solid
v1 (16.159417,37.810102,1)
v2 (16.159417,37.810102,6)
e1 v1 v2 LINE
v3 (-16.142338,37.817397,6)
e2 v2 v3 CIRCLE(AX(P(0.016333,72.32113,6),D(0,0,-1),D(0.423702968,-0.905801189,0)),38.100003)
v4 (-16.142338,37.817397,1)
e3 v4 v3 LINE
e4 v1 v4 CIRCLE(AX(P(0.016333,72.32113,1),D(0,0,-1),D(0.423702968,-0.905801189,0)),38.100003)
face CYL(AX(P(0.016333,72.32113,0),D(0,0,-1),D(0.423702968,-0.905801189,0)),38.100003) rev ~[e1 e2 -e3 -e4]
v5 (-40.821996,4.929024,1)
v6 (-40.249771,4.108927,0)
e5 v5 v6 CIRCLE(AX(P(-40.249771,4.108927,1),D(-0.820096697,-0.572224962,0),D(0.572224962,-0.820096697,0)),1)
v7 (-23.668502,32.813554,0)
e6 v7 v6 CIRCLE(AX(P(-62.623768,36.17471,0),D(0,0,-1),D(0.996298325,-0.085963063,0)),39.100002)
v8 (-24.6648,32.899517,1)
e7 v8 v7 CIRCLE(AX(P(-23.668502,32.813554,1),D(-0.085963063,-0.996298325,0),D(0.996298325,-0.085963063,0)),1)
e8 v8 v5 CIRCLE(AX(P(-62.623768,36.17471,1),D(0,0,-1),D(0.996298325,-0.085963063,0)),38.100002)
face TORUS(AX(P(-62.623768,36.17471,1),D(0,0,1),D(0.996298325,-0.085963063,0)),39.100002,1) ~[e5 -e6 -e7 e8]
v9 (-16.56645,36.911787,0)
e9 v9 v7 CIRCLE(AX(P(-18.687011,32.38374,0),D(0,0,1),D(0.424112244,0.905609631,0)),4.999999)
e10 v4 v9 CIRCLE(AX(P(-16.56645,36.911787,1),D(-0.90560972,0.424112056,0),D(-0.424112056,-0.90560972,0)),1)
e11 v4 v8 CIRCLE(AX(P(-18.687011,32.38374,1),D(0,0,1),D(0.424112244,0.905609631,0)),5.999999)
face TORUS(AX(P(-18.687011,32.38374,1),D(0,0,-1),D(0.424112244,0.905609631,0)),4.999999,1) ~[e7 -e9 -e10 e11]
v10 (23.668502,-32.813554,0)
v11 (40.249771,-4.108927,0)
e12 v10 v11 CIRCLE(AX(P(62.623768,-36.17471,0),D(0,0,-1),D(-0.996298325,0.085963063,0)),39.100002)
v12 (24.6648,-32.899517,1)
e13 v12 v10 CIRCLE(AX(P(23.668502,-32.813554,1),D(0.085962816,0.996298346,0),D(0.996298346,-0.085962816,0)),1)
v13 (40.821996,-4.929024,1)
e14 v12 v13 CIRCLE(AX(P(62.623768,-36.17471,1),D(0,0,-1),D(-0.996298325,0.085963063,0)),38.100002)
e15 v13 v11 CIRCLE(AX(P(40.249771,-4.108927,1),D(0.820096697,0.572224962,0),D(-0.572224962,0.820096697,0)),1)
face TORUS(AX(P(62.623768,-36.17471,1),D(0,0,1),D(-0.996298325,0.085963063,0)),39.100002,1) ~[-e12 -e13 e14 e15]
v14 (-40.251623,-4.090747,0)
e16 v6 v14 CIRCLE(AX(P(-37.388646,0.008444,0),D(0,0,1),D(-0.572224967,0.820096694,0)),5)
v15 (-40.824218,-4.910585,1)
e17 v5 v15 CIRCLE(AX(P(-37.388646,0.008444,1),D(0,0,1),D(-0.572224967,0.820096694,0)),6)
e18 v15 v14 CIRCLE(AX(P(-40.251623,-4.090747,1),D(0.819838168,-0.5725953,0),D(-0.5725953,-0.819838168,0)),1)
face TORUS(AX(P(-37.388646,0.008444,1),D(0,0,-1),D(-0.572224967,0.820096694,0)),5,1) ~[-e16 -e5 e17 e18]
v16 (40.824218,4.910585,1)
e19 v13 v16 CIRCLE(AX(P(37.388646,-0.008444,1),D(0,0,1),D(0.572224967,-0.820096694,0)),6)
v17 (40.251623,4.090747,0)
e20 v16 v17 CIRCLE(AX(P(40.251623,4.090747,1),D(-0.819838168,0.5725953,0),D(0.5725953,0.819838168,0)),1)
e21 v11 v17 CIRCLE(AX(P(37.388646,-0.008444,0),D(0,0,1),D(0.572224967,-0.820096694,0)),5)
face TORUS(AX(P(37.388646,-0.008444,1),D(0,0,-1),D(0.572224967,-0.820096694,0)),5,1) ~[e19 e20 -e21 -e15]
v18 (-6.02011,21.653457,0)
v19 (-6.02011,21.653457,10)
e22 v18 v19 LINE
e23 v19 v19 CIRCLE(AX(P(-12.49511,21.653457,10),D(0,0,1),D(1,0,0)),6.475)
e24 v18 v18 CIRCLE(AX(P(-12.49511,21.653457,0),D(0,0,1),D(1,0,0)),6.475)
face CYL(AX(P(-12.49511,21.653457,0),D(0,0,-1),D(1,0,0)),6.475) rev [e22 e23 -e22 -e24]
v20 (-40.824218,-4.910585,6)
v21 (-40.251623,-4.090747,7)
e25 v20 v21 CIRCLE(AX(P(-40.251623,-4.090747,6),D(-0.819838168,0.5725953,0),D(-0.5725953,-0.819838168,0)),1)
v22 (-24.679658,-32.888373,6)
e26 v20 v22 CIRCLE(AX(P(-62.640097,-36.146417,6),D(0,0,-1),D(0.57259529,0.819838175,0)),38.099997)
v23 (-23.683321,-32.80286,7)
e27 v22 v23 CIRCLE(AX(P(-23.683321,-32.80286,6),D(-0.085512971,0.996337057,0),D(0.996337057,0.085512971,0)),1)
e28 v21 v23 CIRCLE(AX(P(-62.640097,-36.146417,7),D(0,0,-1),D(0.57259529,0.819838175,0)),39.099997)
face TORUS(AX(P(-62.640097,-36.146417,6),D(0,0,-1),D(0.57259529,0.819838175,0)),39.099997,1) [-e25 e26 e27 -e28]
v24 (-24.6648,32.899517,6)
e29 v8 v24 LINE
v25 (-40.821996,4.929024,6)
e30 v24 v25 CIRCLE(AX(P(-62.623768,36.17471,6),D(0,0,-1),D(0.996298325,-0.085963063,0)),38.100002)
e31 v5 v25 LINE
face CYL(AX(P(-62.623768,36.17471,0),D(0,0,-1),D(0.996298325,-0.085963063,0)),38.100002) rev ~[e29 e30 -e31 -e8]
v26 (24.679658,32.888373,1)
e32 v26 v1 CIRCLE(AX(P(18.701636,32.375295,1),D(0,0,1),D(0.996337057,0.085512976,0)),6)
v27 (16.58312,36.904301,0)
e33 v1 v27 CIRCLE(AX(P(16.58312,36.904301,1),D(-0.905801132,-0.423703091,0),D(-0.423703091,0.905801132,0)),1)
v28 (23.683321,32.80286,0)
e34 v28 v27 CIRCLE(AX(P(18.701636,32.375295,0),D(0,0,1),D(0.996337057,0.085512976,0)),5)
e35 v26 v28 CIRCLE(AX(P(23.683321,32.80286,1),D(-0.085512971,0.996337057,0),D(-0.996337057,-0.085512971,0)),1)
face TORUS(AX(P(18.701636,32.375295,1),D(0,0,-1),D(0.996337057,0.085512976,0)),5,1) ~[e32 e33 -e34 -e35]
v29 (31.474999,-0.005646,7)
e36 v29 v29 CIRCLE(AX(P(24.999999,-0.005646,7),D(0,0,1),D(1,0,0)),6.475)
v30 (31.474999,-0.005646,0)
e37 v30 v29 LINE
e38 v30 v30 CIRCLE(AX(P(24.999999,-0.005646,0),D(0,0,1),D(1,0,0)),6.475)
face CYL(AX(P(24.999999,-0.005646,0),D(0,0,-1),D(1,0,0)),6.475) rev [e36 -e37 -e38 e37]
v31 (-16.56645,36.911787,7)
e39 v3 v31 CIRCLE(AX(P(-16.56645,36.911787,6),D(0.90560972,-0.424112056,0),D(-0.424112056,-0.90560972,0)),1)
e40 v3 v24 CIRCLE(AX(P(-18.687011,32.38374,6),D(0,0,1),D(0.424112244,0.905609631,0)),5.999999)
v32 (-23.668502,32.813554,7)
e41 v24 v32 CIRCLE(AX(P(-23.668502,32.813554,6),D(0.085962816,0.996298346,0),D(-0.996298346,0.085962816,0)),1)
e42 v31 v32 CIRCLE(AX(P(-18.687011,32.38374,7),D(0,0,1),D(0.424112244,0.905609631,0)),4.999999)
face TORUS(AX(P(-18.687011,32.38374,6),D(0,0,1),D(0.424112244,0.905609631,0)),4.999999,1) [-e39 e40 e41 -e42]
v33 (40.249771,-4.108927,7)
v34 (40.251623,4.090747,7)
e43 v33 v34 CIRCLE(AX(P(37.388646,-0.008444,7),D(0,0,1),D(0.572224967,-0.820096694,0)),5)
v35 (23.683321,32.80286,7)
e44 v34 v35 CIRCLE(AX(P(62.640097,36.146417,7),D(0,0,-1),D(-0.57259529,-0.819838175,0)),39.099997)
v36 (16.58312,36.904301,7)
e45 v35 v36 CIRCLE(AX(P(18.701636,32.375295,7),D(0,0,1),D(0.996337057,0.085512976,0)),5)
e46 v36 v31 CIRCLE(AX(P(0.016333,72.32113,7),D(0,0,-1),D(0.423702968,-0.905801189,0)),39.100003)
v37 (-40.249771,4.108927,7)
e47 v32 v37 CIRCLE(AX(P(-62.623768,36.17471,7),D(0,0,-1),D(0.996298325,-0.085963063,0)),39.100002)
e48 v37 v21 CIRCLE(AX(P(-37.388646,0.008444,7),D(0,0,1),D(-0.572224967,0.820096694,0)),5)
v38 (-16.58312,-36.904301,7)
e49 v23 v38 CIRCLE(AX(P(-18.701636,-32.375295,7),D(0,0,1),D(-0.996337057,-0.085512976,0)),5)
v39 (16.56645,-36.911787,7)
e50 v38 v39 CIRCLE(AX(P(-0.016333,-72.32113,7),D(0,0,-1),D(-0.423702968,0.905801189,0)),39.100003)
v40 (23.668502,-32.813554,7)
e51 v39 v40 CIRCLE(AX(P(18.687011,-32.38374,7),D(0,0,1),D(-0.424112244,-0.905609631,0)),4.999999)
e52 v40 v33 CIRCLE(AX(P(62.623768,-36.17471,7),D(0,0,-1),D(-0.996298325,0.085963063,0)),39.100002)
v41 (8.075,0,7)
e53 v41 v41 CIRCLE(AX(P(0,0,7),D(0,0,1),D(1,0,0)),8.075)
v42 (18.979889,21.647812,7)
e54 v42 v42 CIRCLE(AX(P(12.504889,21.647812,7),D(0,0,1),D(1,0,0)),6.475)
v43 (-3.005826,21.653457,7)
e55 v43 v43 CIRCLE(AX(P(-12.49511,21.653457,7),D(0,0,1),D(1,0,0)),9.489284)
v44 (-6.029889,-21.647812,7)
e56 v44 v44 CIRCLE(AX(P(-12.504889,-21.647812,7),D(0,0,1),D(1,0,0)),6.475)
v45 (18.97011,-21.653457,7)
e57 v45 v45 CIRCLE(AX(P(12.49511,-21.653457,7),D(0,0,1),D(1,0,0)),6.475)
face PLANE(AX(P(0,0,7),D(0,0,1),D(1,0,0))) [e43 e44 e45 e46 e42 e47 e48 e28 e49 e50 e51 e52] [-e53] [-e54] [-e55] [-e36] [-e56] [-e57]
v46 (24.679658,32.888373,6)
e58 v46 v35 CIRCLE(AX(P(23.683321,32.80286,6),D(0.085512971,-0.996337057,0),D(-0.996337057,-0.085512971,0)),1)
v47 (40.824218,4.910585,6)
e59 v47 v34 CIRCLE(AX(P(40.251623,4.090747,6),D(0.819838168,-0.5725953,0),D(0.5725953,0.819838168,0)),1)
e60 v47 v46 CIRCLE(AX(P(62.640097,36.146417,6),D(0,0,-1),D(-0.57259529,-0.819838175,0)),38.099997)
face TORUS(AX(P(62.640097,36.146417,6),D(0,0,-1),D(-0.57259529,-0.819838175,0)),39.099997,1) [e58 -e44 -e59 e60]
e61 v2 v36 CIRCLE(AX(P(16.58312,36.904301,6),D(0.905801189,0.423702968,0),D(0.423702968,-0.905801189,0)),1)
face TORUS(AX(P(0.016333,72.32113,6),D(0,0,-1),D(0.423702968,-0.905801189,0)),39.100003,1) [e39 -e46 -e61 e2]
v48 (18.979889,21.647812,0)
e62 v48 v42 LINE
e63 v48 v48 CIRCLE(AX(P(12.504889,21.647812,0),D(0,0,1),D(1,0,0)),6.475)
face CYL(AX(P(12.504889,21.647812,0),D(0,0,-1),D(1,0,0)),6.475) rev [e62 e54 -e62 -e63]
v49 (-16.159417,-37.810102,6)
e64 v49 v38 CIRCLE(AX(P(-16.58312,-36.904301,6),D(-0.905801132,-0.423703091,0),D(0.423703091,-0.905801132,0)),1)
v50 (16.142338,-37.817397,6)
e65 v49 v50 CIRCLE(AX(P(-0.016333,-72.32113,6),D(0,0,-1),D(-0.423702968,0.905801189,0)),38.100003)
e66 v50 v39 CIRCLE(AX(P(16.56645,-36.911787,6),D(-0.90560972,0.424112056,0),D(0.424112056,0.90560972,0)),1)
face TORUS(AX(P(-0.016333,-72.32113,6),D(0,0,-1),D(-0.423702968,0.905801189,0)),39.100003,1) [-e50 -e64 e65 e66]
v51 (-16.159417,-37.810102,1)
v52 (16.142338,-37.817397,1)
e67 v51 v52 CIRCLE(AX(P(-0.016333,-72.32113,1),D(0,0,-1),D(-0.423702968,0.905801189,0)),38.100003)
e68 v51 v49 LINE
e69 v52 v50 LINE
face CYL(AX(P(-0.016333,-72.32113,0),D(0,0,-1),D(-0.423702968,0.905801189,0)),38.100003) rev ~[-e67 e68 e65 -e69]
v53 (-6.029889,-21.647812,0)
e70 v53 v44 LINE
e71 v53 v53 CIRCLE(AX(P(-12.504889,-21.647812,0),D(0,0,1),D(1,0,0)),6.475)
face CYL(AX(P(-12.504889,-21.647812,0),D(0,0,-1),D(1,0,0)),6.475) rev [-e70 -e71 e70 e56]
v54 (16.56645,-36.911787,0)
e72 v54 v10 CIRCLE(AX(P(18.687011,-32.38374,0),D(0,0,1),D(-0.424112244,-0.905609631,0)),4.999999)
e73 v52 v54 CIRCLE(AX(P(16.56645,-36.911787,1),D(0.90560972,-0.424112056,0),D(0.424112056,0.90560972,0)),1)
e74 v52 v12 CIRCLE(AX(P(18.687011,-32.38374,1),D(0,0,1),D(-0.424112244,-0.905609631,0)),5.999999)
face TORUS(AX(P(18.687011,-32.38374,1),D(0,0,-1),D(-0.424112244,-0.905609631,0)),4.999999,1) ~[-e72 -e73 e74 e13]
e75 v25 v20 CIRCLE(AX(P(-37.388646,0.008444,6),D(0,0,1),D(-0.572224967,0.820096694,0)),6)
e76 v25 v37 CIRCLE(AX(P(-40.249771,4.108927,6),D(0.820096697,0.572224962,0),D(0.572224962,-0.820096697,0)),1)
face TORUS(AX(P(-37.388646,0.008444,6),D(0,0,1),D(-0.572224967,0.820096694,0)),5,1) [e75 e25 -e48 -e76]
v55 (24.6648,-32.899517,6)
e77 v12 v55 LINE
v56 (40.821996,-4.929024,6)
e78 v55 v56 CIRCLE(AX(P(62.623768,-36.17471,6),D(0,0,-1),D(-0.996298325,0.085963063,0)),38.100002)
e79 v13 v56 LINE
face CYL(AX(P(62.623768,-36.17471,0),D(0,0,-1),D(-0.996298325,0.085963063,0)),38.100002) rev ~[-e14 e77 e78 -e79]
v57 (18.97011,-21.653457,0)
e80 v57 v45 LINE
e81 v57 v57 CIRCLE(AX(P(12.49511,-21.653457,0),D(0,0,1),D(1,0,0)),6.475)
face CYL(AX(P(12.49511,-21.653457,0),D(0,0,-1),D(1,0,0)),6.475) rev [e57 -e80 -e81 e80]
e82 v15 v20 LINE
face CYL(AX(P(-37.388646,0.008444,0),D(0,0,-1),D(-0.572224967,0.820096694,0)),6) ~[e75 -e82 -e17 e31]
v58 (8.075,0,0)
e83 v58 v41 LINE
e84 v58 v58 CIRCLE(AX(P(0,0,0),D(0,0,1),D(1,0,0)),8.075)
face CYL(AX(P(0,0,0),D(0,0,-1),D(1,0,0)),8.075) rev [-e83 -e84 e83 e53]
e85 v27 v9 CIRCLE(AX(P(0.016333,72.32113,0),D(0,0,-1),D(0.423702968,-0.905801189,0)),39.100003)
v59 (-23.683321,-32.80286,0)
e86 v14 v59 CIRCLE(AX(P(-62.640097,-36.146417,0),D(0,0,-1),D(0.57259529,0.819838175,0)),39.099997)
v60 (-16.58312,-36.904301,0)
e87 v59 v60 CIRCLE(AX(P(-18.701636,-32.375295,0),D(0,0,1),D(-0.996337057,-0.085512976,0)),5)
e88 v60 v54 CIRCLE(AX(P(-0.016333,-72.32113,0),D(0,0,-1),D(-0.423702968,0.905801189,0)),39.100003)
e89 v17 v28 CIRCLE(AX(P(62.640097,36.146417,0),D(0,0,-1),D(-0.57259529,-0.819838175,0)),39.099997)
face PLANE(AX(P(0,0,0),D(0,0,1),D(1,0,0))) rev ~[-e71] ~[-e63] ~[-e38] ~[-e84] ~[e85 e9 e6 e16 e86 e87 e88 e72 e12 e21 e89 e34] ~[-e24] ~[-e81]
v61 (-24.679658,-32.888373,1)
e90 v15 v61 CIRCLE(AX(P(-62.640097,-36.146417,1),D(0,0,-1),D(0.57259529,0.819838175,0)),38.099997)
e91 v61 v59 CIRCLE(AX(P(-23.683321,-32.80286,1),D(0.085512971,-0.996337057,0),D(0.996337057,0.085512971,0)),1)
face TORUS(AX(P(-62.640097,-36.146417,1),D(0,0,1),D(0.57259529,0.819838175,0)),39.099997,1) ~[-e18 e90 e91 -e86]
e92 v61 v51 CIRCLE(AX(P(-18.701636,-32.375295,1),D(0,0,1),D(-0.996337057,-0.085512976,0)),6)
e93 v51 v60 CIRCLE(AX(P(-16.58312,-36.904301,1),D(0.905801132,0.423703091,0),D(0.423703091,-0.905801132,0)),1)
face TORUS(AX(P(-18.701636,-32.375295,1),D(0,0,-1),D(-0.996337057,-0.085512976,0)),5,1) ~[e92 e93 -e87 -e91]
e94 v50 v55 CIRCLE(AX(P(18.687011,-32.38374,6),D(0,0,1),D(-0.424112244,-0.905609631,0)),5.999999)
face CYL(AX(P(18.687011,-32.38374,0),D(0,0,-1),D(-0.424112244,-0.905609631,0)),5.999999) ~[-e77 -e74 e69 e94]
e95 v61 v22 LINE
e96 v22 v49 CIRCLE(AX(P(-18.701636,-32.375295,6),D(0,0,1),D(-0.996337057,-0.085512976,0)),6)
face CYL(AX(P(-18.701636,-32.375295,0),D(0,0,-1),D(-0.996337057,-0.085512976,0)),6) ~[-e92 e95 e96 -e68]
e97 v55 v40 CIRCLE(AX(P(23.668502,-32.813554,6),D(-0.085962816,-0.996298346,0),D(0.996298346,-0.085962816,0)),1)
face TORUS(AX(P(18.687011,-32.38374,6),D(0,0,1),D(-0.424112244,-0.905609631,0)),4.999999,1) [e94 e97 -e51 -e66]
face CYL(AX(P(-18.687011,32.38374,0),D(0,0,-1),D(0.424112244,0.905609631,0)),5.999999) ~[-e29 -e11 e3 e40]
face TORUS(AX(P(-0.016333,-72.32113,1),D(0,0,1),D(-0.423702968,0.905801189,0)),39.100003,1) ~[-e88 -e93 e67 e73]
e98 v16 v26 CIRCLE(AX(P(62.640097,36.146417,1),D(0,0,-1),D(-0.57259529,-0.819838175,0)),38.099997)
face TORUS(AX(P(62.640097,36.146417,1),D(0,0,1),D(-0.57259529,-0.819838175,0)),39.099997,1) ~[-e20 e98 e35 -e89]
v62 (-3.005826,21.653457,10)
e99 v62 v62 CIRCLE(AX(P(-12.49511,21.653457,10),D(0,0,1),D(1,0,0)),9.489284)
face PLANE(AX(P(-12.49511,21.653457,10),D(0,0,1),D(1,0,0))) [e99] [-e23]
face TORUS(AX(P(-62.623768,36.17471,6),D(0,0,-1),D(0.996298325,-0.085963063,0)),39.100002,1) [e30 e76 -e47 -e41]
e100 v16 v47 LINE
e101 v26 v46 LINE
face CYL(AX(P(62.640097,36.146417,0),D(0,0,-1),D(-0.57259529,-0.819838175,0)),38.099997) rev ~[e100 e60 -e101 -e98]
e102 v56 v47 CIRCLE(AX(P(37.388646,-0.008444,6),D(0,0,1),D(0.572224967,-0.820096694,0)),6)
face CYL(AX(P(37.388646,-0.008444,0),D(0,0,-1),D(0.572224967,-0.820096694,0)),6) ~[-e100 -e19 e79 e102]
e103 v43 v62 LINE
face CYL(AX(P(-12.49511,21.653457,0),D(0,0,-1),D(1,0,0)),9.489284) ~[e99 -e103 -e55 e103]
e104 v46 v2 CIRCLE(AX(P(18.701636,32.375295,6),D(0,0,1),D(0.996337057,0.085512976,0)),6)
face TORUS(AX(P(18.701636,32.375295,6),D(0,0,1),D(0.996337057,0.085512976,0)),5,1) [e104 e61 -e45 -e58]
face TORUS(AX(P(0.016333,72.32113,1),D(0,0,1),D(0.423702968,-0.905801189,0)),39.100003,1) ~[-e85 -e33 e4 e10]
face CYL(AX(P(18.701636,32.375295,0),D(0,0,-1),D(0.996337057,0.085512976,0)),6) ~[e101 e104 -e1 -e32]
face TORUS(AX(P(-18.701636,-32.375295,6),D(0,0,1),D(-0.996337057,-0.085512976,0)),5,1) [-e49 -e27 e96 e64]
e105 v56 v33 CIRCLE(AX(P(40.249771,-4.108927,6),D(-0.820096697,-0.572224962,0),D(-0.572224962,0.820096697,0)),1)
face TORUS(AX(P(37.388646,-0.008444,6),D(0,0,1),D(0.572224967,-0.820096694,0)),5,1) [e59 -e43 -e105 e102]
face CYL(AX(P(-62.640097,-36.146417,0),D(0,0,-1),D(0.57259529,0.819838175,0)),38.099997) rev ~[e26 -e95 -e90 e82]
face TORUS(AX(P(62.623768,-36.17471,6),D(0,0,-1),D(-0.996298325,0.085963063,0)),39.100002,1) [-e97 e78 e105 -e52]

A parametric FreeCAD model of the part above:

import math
import FreeCAD as App
import Part
import Sketcher
from FreeCAD import Vector
Q = App.Units.Quantity


def edges_at(feature, points):
    """Names of the edges that pass closest to the given points."""
    edges = feature.Shape.Edges
    near = lambda p: min(range(len(edges)), key=lambda i: edges[i].distToShape(Part.Vertex(*p))[0])
    return sorted({f"Edge{near(p) + 1}" for p in points})

doc = App.newDocument("Part")
body = doc.addObject("PartDesign::Body", "Body")

# Sketch on XY plane
sketch1 = body.newObject("Sketcher::SketchObject", "Sketch")
sketch1.AttachmentSupport = (doc.getObject("XY_Plane"), [""])
sketch1.MapMode = "FlatFace"
sketch1.addGeometry(Part.ArcOfCircle(Part.Circle(Vector(0.016333, 72.32113, 0), Vector(0, 0, 1), 38.100003), math.radians(-115.094472), math.radians(-64.931407)), False)
sketch1.addGeometry(Part.ArcOfCircle(Part.Circle(Vector(-18.687011, 32.38374, 0), Vector(0, 0, 1), 5.999999), math.radians(64.905516), math.radians(175.068607)), False)
sketch1.addGeometry(Part.ArcOfCircle(Part.Circle(Vector(-62.623768, 36.17471, 0), Vector(0, 0, 1), 38.100002), math.radians(-55.094475), math.radians(-4.931407)), False)
sketch1.addGeometry(Part.ArcOfCircle(Part.Circle(Vector(-37.388646, 0.008444, 0), Vector(0, 0, 1), 6), math.radians(124.905526), math.radians(235.068597)), False)
sketch1.addGeometry(Part.ArcOfCircle(Part.Circle(Vector(-62.640097, -36.146417, 0), Vector(0, 0, 1), 38.099997), math.radians(4.905523), math.radians(55.068598)), False)
sketch1.addGeometry(Part.ArcOfCircle(Part.Circle(Vector(-18.701636, -32.375295, 0), Vector(0, 0, 1), 6), math.radians(-175.094476), math.radians(-64.931399)), False)
sketch1.addGeometry(Part.ArcOfCircle(Part.Circle(Vector(-0.016333, -72.32113, 0), Vector(0, 0, 1), 38.100003), math.radians(64.905528), math.radians(115.068593)), False)
sketch1.addGeometry(Part.ArcOfCircle(Part.Circle(Vector(18.687011, -32.38374, 0), Vector(0, 0, 1), 5.999999), math.radians(-115.094484), math.radians(-4.931393)), False)
sketch1.addGeometry(Part.ArcOfCircle(Part.Circle(Vector(62.623768, -36.17471, 0), Vector(0, 0, 1), 38.100002), math.radians(124.905525), math.radians(175.068593)), False)
sketch1.addGeometry(Part.ArcOfCircle(Part.Circle(Vector(37.388646, -0.008444, 0), Vector(0, 0, 1), 6), math.radians(-55.094474), math.radians(55.068597)), False)
sketch1.addGeometry(Part.ArcOfCircle(Part.Circle(Vector(62.640097, 36.146417, 0), Vector(0, 0, 1), 38.099997), math.radians(-175.094477), math.radians(-124.931402)), False)
sketch1.addGeometry(Part.ArcOfCircle(Part.Circle(Vector(18.701636, 32.375295, 0), Vector(0, 0, 1), 6), math.radians(4.905524), math.radians(115.068601)), False)
sketch1.addGeometry(Part.Circle(Vector(-12.504889, -21.647812, 0), Vector(0, 0, 1), 6.475), False)
sketch1.addGeometry(Part.Circle(Vector(0, 0, 0), Vector(0, 0, 1), 8.075), False)
sketch1.addGeometry(Part.Circle(Vector(12.49511, -21.653457, 0), Vector(0, 0, 1), 6.475), False)
sketch1.addGeometry(Part.Circle(Vector(24.999999, -0.005646, 0), Vector(0, 0, 1), 6.475), False)
sketch1.addGeometry(Part.Circle(Vector(-12.49511, 21.653457, 0), Vector(0, 0, 1), 9.489284), False)
sketch1.addGeometry(Part.Circle(Vector(12.504889, 21.647812, 0), Vector(0, 0, 1), 6.475), False)
sketch1.addConstraint(Sketcher.Constraint("Tangent", 0, 1, 1, 1))
sketch1.addConstraint(Sketcher.Constraint("Tangent", 1, 2, 2, 2))
sketch1.addConstraint(Sketcher.Constraint("Tangent", 2, 1, 3, 1))
sketch1.addConstraint(Sketcher.Constraint("Tangent", 3, 2, 4, 2))
sketch1.addConstraint(Sketcher.Constraint("Tangent", 4, 1, 5, 1))
sketch1.addConstraint(Sketcher.Constraint("Tangent", 5, 2, 6, 2))
sketch1.addConstraint(Sketcher.Constraint("Tangent", 6, 1, 7, 1))
sketch1.addConstraint(Sketcher.Constraint("Tangent", 7, 2, 8, 2))
sketch1.addConstraint(Sketcher.Constraint("Tangent", 8, 1, 9, 1))
sketch1.addConstraint(Sketcher.Constraint("Tangent", 9, 2, 10, 2))
sketch1.addConstraint(Sketcher.Constraint("Tangent", 10, 1, 11, 1))
sketch1.addConstraint(Sketcher.Constraint("Tangent", 11, 2, 0, 2))
sketch1.addConstraint(Sketcher.Constraint("Coincident", 13, 3, -1, 1))
sketch1.addConstraint(Sketcher.Constraint("Equal", 0, 2))
sketch1.addConstraint(Sketcher.Constraint("Equal", 1, 3))
sketch1.addConstraint(Sketcher.Constraint("Equal", 3, 5))
sketch1.addConstraint(Sketcher.Constraint("Equal", 2, 6))
sketch1.addConstraint(Sketcher.Constraint("Equal", 5, 7))
sketch1.addConstraint(Sketcher.Constraint("Equal", 6, 8))
sketch1.addConstraint(Sketcher.Constraint("Equal", 7, 9))
sketch1.addConstraint(Sketcher.Constraint("Equal", 4, 10))
sketch1.addConstraint(Sketcher.Constraint("Equal", 9, 11))
sketch1.addConstraint(Sketcher.Constraint("Equal", 12, 14))
sketch1.addConstraint(Sketcher.Constraint("Equal", 14, 15))
sketch1.addConstraint(Sketcher.Constraint("Equal", 15, 17))
sketch1.addConstraint(Sketcher.Constraint("Symmetric", 0, 3, 6, 3, -1, 1))
sketch1.addConstraint(Sketcher.Constraint("Symmetric", 2, 3, 8, 3, -1, 1))
sketch1.addConstraint(Sketcher.Constraint("Symmetric", 4, 3, 10, 3, -1, 1))
sketch1.addConstraint(Sketcher.Constraint("Symmetric", 14, 3, 16, 3, -1, 1))
sketch1.addConstraint(Sketcher.Constraint("Symmetric", 12, 3, 17, 3, -1, 1))
sketch1.addConstraint(Sketcher.Constraint("Radius", 1, Q("5.999999 mm")))
sketch1.addConstraint(Sketcher.Constraint("Diameter", 12, Q("12.95 mm")))
sketch1.addConstraint(Sketcher.Constraint("Diameter", 13, Q("16.15 mm")))
sketch1.addConstraint(Sketcher.Constraint("DistanceX", -1, 1, 15, 3, Q("24.999999 mm")))
sketch1.addConstraint(Sketcher.Constraint("DistanceX", 12, 3, 14, 3, Q("24.999999 mm")))
sketch1.addConstraint(Sketcher.Constraint("Diameter", 16, Q("18.978568 mm")))
sketch1.addConstraint(Sketcher.Constraint("Radius", 0, Q("38.100003 mm")))
sketch1.addConstraint(Sketcher.Constraint("Radius", 4, Q("38.099997 mm")))
sketch1.addConstraint(Sketcher.Constraint("DistanceX", 1, 2, -1, 1, Q("24.6648 mm")))
sketch1.addConstraint(Sketcher.Constraint("DistanceX", 2, 3, 0, 3, Q("62.640101 mm")))
sketch1.addConstraint(Sketcher.Constraint("DistanceX", 12, 3, 7, 3, Q("31.1919 mm")))
sketch1.addConstraint(Sketcher.Constraint("DistanceY", 11, 3, 0, 1, Q("5.442102 mm")))
sketch1.addConstraint(Sketcher.Constraint("DistanceY", -1, 1, 0, 3, Q("72.32113 mm")))
sketch1.addConstraint(Sketcher.Constraint("DistanceX", 1, 3, -1, 1, Q("18.687011 mm")))
sketch1.addConstraint(Sketcher.Constraint("DistanceY", 12, 3, -1, 1, Q("21.647812 mm")))
sketch1.addConstraint(Sketcher.Constraint("DistanceX", 3, 2, -1, 1, Q("40.824218 mm")))
sketch1.addConstraint(Sketcher.Constraint("DistanceY", 5, 3, 14, 3, Q("10.721838 mm")))
sketch1.addConstraint(Sketcher.Constraint("DistanceY", 14, 3, 15, 3, Q("21.647811 mm")))
pad1 = body.newObject("PartDesign::Pad", "Pad")
pad1.Profile = sketch1
pad1.Length = 7
doc.recompute()

fillet = body.newObject("PartDesign::Fillet", "Fillet")
fillet.Base = (pad1, edges_at(pad1, [(0.008, 34.221, 7), (-29.633, 17.117, 0)]))
fillet.Radius = 1

# Sketch on XY plane
sketch2 = body.newObject("Sketcher::SketchObject", "Sketch001")
sketch2.AttachmentSupport = (doc.getObject("XY_Plane"), [""])
sketch2.MapMode = "FlatFace"
sketch2.addGeometry(Part.Circle(Vector(-12.49511, 21.653457, 0), Vector(0, 0, 1), 9.489284), False)
sketch2.addGeometry(Part.Circle(Vector(-12.49511, 21.653457, 0), Vector(0, 0, 1), 6.475), False)
sketch2.addConstraint(Sketcher.Constraint("Coincident", 1, 3, 0, 3))
sketch2.addConstraint(Sketcher.Constraint("Diameter", 1, Q("12.95 mm")))
sketch2.addConstraint(Sketcher.Constraint("Diameter", 0, Q("18.978568 mm")))
sketch2.addConstraint(Sketcher.Constraint("DistanceX", 0, 3, -1, 1, Q("12.49511 mm")))
sketch2.addConstraint(Sketcher.Constraint("DistanceY", -1, 1, 0, 3, Q("21.653457 mm")))
pad2 = body.newObject("PartDesign::Pad", "Pad001")
pad2.Profile = sketch2
pad2.Length = 10

doc.recompute()
